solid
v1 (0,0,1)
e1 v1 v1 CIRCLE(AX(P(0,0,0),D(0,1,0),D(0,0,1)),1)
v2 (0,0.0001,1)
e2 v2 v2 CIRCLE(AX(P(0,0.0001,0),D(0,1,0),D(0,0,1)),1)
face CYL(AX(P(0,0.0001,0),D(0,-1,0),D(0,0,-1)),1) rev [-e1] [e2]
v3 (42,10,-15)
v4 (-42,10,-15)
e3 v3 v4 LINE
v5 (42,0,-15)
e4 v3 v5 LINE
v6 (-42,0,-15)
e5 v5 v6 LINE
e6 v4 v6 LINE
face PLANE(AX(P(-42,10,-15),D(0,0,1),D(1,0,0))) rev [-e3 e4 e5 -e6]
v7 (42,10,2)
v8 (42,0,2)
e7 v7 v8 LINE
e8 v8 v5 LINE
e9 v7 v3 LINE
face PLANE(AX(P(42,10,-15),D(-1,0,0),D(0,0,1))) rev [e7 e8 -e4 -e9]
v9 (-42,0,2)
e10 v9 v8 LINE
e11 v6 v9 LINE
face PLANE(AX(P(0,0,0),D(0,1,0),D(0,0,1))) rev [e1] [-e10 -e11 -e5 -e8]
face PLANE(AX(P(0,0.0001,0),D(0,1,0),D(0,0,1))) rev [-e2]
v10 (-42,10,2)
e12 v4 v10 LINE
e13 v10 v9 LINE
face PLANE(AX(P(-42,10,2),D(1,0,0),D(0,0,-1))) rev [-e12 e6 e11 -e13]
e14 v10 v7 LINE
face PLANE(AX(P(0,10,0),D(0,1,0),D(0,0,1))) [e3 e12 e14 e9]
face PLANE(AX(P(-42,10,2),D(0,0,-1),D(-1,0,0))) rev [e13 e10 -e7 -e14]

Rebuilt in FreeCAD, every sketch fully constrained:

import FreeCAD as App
import Part
import Sketcher

V = App.Vector

doc = App.newDocument("Part")
body = doc.addObject("PartDesign::Body", "Body")

sketch1 = doc.addObject("Sketcher::SketchObject", "Sketch")
body.addObject(sketch1)
sketch1.AttachmentSupport = (doc.XZ_Plane, [""])
sketch1.MapMode = "FlatFace"
sketch1.addGeometry([
    Part.LineSegment(V(-42, -15, 0), V(-42, 2, 0)),
    Part.LineSegment(V(-42, 2, 0), V(42, 2, 0)),
    Part.LineSegment(V(42, 2, 0), V(42, -15, 0)),
    Part.LineSegment(V(42, -15, 0), V(-42, -15, 0)),
], False)
sketch1.addConstraint([
    Sketcher.Constraint("Coincident", 0, 2, 1, 1),
    Sketcher.Constraint("Coincident", 1, 2, 2, 1),
    Sketcher.Constraint("Coincident", 2, 2, 3, 1),
    Sketcher.Constraint("Coincident", 3, 2, 0, 1),
    Sketcher.Constraint("Vertical", 0),
    Sketcher.Constraint("Horizontal", 1),
    Sketcher.Constraint("Vertical", 2),
    Sketcher.Constraint("Horizontal", 3),
    Sketcher.Constraint("DistanceX", 1, 1, 1, 2, 84.0),
    Sketcher.Constraint("DistanceY", 0, 1, 0, 2, 17.0),
    Sketcher.Constraint("DistanceX", 0, 2, -1, 1, 42.0),
    Sketcher.Constraint("DistanceY", -1, 1, 0, 2, 2.0),
])
pad1 = doc.addObject("PartDesign::Pad", "Pad")
body.addObject(pad1)
pad1.Profile = sketch1
pad1.Length = 10
pad1.Reversed = True

sketch2 = doc.addObject("Sketcher::SketchObject", "Sketch001")
body.addObject(sketch2)
sketch2.AttachmentSupport = (doc.XZ_Plane, [""])
sketch2.MapMode = "FlatFace"
sketch2.addGeometry(Part.Circle(V(0, 0, 0), V(0, 0, 1), 1), False)
sketch2.addConstraint([
    Sketcher.Constraint("Coincident", 0, 3, -1, 1),
    Sketcher.Constraint("Diameter", 0, 2.0),
])
pocket1 = doc.addObject("PartDesign::Pocket", "Pocket")
body.addObject(pocket1)
pocket1.Profile = sketch2
pocket1.Length = 0.0001

doc.recompute()
